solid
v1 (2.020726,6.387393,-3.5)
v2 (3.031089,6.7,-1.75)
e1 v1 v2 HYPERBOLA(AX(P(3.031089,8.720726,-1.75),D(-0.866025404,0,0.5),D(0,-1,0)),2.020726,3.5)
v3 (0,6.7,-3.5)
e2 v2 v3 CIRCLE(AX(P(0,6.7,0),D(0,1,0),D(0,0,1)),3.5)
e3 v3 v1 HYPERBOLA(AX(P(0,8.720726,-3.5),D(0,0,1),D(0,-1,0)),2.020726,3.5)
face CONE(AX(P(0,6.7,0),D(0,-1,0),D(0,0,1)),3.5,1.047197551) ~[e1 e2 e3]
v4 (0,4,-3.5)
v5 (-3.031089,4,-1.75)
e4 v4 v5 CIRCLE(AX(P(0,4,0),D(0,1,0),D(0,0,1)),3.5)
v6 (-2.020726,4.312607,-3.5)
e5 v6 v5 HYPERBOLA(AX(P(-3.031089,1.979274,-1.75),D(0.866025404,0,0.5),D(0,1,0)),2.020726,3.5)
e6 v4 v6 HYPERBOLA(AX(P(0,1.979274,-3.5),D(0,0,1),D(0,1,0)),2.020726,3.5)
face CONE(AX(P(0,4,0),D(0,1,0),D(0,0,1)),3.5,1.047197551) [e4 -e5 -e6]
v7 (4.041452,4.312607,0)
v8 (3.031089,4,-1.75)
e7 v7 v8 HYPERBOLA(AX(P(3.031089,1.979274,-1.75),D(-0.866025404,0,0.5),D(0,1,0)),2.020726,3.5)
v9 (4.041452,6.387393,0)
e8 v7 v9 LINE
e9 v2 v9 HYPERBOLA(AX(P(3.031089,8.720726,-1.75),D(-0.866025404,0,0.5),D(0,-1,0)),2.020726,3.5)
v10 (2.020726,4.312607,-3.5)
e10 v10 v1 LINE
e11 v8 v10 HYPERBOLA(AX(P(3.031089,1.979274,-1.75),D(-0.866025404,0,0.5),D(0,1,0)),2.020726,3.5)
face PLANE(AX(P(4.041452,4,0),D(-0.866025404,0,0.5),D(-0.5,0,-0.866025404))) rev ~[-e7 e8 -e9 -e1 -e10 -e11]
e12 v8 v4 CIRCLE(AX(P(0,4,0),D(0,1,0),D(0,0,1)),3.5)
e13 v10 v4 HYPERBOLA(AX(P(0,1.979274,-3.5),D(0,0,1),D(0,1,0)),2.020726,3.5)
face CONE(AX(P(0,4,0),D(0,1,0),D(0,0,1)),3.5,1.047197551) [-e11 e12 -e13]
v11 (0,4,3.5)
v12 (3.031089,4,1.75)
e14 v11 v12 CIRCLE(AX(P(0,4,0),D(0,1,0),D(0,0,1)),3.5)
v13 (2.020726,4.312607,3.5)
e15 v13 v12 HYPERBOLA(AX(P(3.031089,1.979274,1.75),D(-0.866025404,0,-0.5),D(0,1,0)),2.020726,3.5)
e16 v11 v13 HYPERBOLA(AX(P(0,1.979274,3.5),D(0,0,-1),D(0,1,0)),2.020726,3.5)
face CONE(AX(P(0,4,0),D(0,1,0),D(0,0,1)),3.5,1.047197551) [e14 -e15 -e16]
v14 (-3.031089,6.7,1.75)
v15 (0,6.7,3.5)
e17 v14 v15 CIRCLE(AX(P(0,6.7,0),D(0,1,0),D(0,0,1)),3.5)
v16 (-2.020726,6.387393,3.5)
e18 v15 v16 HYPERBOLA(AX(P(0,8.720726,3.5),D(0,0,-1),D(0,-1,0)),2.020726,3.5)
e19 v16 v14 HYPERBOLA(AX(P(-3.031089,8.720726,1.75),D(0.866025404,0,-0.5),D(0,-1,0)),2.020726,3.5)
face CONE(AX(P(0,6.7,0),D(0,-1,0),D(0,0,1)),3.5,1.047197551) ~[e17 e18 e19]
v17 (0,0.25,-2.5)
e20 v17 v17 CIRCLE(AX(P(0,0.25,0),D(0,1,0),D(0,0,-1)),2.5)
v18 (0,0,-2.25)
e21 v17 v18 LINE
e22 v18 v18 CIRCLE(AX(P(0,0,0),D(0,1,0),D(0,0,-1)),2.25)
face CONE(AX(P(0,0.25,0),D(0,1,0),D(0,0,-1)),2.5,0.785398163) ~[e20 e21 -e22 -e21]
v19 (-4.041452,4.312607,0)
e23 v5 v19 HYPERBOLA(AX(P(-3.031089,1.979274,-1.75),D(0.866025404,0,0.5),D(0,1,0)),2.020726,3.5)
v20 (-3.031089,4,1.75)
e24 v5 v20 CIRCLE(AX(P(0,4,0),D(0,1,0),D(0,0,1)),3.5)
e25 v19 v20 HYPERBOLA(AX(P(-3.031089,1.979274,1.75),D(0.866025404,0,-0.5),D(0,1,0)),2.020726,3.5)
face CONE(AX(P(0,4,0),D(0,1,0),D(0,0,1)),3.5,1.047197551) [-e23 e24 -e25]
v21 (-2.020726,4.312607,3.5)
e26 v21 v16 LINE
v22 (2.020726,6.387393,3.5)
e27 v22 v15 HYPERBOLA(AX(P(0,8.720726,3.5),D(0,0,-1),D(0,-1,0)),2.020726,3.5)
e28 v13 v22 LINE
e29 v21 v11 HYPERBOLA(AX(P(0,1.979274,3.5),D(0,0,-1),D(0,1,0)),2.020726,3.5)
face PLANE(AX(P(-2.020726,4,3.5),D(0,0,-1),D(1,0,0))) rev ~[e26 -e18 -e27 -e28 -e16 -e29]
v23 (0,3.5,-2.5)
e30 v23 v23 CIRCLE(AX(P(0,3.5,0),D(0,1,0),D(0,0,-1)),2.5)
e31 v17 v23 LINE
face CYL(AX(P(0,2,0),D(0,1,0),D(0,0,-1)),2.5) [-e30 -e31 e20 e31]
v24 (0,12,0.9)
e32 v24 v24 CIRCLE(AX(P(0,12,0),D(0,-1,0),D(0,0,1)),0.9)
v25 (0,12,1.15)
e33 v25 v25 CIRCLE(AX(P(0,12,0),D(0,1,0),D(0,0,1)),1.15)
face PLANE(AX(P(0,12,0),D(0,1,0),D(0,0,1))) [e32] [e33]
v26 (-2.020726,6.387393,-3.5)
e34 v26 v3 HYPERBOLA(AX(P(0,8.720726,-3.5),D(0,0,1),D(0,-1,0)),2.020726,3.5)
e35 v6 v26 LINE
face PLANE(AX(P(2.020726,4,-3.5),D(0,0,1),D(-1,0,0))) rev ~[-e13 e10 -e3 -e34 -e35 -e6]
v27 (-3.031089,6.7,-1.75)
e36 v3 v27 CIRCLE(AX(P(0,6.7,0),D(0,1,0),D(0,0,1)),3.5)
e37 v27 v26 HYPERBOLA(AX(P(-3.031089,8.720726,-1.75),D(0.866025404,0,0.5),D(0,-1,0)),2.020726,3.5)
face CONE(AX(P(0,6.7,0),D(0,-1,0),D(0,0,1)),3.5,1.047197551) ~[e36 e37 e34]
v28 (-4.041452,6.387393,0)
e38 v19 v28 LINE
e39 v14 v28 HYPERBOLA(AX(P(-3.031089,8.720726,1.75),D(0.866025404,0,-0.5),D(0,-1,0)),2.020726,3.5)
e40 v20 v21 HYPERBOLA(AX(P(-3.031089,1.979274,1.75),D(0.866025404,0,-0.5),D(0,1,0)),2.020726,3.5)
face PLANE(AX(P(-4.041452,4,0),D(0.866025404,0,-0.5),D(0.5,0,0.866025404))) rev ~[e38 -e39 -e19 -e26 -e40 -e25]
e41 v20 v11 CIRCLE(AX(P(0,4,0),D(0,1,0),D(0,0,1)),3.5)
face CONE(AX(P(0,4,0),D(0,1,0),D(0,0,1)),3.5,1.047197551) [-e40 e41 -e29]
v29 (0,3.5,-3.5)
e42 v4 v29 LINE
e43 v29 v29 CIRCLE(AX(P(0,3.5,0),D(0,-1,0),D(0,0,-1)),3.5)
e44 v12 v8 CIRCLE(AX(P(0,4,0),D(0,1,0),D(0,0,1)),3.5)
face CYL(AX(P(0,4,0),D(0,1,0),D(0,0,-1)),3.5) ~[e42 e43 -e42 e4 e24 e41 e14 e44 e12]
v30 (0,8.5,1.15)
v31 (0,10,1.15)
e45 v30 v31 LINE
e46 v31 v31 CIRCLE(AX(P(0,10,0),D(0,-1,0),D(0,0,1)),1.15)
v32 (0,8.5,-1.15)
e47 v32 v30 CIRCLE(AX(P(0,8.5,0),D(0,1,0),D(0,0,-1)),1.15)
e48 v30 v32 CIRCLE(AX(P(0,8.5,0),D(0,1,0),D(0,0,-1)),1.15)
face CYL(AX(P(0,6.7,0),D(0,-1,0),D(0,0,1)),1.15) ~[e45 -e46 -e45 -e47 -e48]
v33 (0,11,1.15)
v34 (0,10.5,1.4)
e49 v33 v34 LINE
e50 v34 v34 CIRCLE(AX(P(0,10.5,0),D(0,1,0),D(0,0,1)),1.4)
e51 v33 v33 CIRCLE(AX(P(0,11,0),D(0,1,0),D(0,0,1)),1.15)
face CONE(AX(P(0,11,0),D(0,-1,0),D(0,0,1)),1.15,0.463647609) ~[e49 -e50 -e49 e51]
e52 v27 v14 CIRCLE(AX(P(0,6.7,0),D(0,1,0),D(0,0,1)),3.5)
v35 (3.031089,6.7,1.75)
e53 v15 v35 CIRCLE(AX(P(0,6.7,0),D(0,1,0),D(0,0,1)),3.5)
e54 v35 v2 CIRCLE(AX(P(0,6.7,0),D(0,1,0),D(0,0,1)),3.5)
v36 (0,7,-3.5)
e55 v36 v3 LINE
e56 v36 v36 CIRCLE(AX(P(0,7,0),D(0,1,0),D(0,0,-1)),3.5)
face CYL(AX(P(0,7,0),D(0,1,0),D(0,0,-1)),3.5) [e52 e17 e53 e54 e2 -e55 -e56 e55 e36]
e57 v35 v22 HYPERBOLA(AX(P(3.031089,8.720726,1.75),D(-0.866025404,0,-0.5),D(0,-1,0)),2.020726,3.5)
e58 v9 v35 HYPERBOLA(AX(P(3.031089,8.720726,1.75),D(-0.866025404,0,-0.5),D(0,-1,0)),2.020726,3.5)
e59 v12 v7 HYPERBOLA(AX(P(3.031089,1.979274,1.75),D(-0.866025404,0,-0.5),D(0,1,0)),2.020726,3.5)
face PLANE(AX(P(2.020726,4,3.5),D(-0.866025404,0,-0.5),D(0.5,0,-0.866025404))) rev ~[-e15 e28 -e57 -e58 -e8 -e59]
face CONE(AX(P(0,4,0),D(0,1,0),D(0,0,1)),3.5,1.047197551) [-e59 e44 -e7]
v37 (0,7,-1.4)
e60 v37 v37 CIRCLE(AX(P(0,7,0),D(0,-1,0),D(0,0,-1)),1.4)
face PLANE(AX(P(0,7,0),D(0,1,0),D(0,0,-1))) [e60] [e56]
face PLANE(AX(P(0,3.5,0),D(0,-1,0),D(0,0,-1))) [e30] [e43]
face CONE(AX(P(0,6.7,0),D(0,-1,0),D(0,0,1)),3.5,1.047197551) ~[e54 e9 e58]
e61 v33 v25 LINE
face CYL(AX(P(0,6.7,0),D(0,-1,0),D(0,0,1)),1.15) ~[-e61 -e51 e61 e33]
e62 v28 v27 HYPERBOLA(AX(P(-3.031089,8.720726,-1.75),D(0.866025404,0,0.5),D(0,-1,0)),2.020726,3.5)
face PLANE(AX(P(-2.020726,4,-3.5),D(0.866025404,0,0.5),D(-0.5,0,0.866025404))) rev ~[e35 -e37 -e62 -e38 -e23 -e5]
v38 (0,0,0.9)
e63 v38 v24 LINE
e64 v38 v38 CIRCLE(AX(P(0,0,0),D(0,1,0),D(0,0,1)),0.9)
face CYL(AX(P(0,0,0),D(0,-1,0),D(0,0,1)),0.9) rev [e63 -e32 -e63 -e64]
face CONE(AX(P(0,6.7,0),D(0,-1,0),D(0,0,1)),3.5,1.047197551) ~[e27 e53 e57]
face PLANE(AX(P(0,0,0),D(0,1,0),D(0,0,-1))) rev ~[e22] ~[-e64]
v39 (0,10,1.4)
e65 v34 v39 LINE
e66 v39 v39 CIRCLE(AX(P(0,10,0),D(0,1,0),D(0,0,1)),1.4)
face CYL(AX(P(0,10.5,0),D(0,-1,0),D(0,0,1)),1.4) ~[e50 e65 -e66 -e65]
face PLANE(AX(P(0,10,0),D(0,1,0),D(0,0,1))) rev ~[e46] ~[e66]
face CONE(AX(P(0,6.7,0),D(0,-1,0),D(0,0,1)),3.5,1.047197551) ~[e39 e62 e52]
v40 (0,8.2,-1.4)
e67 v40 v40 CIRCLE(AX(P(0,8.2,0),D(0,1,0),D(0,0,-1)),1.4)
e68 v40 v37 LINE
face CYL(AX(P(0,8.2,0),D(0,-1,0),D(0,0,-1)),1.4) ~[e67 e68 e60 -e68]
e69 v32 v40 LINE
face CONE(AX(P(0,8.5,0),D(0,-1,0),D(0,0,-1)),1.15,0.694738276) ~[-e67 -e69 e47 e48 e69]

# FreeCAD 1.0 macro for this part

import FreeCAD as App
import Part
import Sketcher
from FreeCAD import Vector
Q = App.Units.Quantity


def edges_at(feature, points):
    """Names of the edges that pass closest to the given points."""
    edges = feature.Shape.Edges
    near = lambda p: min(range(len(edges)), key=lambda i: edges[i].distToShape(Part.Vertex(*p))[0])
    return sorted({f"Edge{near(p) + 1}" for p in points})

doc = App.newDocument("Part")
params = doc.addObject("Spreadsheet::Sheet", "Params")
for row, (alias, value) in enumerate([
    ("sketch1_height", "4 mm"),
    ("sketch1_width", "2.5 mm"),
    ("revolution_angle", "360 deg"),
    ("chamfer_size", "0.25 mm"),
    ("pad1_length", "2.7 mm"),
    ("groove_angle", "360 deg"),
    ("sketch4_diameter", "7 mm"),
    ("pad2_length", "0.5 mm"),
    ("sketch5_diameter", "2.3 mm"),
    ("pad3_length", "5.3 mm"),
    ("sketch6_diameter", "7 mm"),
    ("pad4_length", "0.3 mm"),
    ("sketch7_height", "1 mm"),
    ("sketch7_width", "1.4 mm"),
    ("sketch7_height2", "0.5 mm"),
    ("sketch7_width2", "1.15 mm"),
    ("revolution2_angle", "360 deg"),
    ("sketch8_width", "1.4 mm"),
    ("sketch8_height", "1.5 mm"),
    ("sketch8_height2", "1.8 mm"),
    ("sketch8_width2", "1.15 mm"),
    ("revolution3_angle", "360 deg"),
    ("sketch9_diameter", "1.8 mm"),
], start=1):
    params.set(f"A{row}", alias)
    params.set(f"B{row}", "=" + value)
    params.setAlias(f"B{row}", alias)

body = doc.addObject("PartDesign::Body", "Body")

# Sketch on XY plane
sketch1 = doc.addObject("Sketcher::SketchObject", "Sketch")
body.addObject(sketch1)
sketch1.AttachmentSupport = (doc.XY_Plane, [""])
sketch1.MapMode = "FlatFace"
sketch1.addGeometry([
    Part.LineSegment(Vector(-2.5, 4, 0), Vector(-2.5, 0, 0)),
    Part.LineSegment(Vector(-2.5, 0, 0), Vector(0, 0, 0)),
    Part.LineSegment(Vector(0, 0, 0), Vector(0, 4, 0)),
    Part.LineSegment(Vector(0, 4, 0), Vector(-2.5, 4, 0)),
], False)
sketch1.addConstraint([
    Sketcher.Constraint("Coincident", 0, 2, 1, 1),
    Sketcher.Constraint("Coincident", 1, 2, 2, 1),
    Sketcher.Constraint("Coincident", 2, 2, 3, 1),
    Sketcher.Constraint("Coincident", 3, 2, 0, 1),
    Sketcher.Constraint("Vertical", 0),
    Sketcher.Constraint("Horizontal", 1),
    Sketcher.Constraint("Vertical", 2),
    Sketcher.Constraint("Horizontal", 3),
    Sketcher.Constraint("Coincident", 1, 2, -1, 1),
    Sketcher.Constraint("DistanceY", 0, 2, 0, 1, 4.0),
    Sketcher.Constraint("DistanceX", 1, 1, 1, 2, 2.5),
])
sketch1.setExpression("Constraints[9]", "Params.sketch1_height")
sketch1.setExpression("Constraints[10]", "Params.sketch1_width")
revolution = doc.addObject("PartDesign::Revolution", "Revolution")
body.addObject(revolution)
revolution.Profile = sketch1
revolution.ReferenceAxis = (sketch1, ["V_Axis"])
revolution.setExpression("Angle", "Params.revolution_angle")
doc.recompute()

chamfer = doc.addObject("PartDesign::Chamfer", "Chamfer")
body.addObject(chamfer)
chamfer.Base = (revolution, edges_at(revolution, [(0, 0, 2.5)]))
chamfer.setExpression("Size", "Params.chamfer_size")

# Sketch on XZ plane
sketch2 = doc.addObject("Sketcher::SketchObject", "Sketch001")
body.addObject(sketch2)
sketch2.AttachmentSupport = (doc.XZ_Plane, [""])
sketch2.MapMode = "FlatFace"
sketch2.AttachmentOffset = App.Placement(Vector(0, 0, -4), App.Rotation())
sketch2.addGeometry([
    Part.LineSegment(Vector(4, 0, 0), Vector(2, -3.5, 0)),  # 0
    Part.LineSegment(Vector(2, -3.5, 0), Vector(-2, -3.5, 0)),  # 1
    Part.LineSegment(Vector(-2, -3.5, 0), Vector(-4, 0, 0)),  # 2
    Part.LineSegment(Vector(-4, 0, 0), Vector(-2, 3.5, 0)),  # 3
    Part.LineSegment(Vector(-2, 3.5, 0), Vector(2, 3.5, 0)),  # 4
    Part.LineSegment(Vector(2, 3.5, 0), Vector(4, 0, 0)),  # 5
], False)
sketch2.addConstraint([
    Sketcher.Constraint("Coincident", 0, 2, 1, 1),
    Sketcher.Constraint("Coincident", 1, 2, 2, 1),
    Sketcher.Constraint("Coincident", 2, 2, 3, 1),
    Sketcher.Constraint("Coincident", 3, 2, 4, 1),
    Sketcher.Constraint("Coincident", 4, 2, 5, 1),
    Sketcher.Constraint("Coincident", 5, 2, 0, 1),
    Sketcher.Constraint("Horizontal", 1),
    Sketcher.Constraint("Horizontal", 4),
    Sketcher.Constraint("Symmetric", 0, 2, 3, 2, -1, 1),
    Sketcher.Constraint("Symmetric", 2, 2, 5, 2, -1, 1),
    Sketcher.Constraint("PointOnObject", 2, 2, -1),
    Sketcher.Constraint("Parallel", 2, 5),
    Sketcher.Constraint("Vertical", 1, 2, 3, 2),
    Sketcher.Constraint("Angle", 0, Q("-120 deg")),
    Sketcher.Constraint("DistanceY", 1, 2, 3, 2, 7.0),
    Sketcher.Constraint("DistanceX", 1, 2, 1, 1, 4.041452),
])
pad1 = doc.addObject("PartDesign::Pad", "Pad")
body.addObject(pad1)
pad1.Profile = sketch2
pad1.setExpression("Length", "Params.pad1_length")
pad1.Reversed = True

# Sketch on XY plane
sketch3 = doc.addObject("Sketcher::SketchObject", "Sketch002")
body.addObject(sketch3)
sketch3.AttachmentSupport = (doc.XY_Plane, [""])
sketch3.MapMode = "FlatFace"
sketch3.addGeometry([
    Part.LineSegment(Vector(-4.04, 4.31, 0), Vector(-4.04, 4, 0)),  # 0
    Part.LineSegment(Vector(-4.04, 4, 0), Vector(-3.5, 4, 0)),  # 1
    Part.LineSegment(Vector(-3.5, 4, 0), Vector(-4.04, 4.31, 0)),  # 2
    Part.LineSegment(Vector(-4.04, 6.39, 0), Vector(-3.5, 6.7, 0)),  # 3
    Part.LineSegment(Vector(-3.5, 6.7, 0), Vector(-4.04, 6.7, 0)),  # 4
    Part.LineSegment(Vector(-4.04, 6.7, 0), Vector(-4.04, 6.39, 0)),  # 5
], False)
sketch3.addConstraint([
    Sketcher.Constraint("Coincident", 0, 2, 1, 1),
    Sketcher.Constraint("Coincident", 1, 2, 2, 1),
    Sketcher.Constraint("Coincident", 2, 2, 0, 1),
    Sketcher.Constraint("Coincident", 3, 2, 4, 1),
    Sketcher.Constraint("Coincident", 4, 2, 5, 1),
    Sketcher.Constraint("Coincident", 5, 2, 3, 1),
    Sketcher.Constraint("Vertical", 0),
    Sketcher.Constraint("Horizontal", 1),
    Sketcher.Constraint("Horizontal", 4),
    Sketcher.Constraint("Vertical", 5),
    Sketcher.Constraint("Vertical", 1, 2, 3, 2),
    Sketcher.Constraint("Vertical", 2, 2, 4, 2),
    Sketcher.Constraint("Equal", 0, 5),
    Sketcher.Constraint("Angle", 2, Q("150 deg")),
    Sketcher.Constraint("DistanceY", -1, 1, 0, 2, 4.0),
    Sketcher.Constraint("DistanceX", 1, 2, -1, 1, 3.5),
    Sketcher.Constraint("DistanceY", -1, 1, 3, 2, 6.7),
    Sketcher.Constraint("DistanceX", 1, 1, 1, 2, 0.541452),
])
groove = doc.addObject("PartDesign::Groove", "Groove")
body.addObject(groove)
groove.Profile = sketch3
groove.ReferenceAxis = (sketch3, ["V_Axis"])
groove.setExpression("Angle", "Params.groove_angle")

# Sketch on XZ plane
sketch4 = doc.addObject("Sketcher::SketchObject", "Sketch003")
body.addObject(sketch4)
sketch4.AttachmentSupport = (doc.XZ_Plane, [""])
sketch4.MapMode = "FlatFace"
sketch4.AttachmentOffset = App.Placement(Vector(0, 0, -4), App.Rotation())
sketch4.addGeometry(Part.Circle(Vector(0, 0, 0), Vector(0, 0, 1), 3.5), False)
sketch4.addConstraint([
    Sketcher.Constraint("Coincident", 0, 3, -1, 1),
    Sketcher.Constraint("Diameter", 0, 7.0),
])
sketch4.setExpression("Constraints[1]", "Params.sketch4_diameter")
pad2 = doc.addObject("PartDesign::Pad", "Pad001")
body.addObject(pad2)
pad2.Profile = sketch4
pad2.setExpression("Length", "Params.pad2_length")

# Sketch on XZ plane
sketch5 = doc.addObject("Sketcher::SketchObject", "Sketch004")
body.addObject(sketch5)
sketch5.AttachmentSupport = (doc.XZ_Plane, [""])
sketch5.MapMode = "FlatFace"
sketch5.AttachmentOffset = App.Placement(Vector(0, 0, -6.7), App.Rotation())
sketch5.addGeometry(Part.Circle(Vector(0, 0, 0), Vector(0, 0, 1), 1.1), False)
sketch5.addConstraint([
    Sketcher.Constraint("Coincident", 0, 3, -1, 1),
    Sketcher.Constraint("Diameter", 0, 2.3),
])
sketch5.setExpression("Constraints[1]", "Params.sketch5_diameter")
pad3 = doc.addObject("PartDesign::Pad", "Pad002")
body.addObject(pad3)
pad3.Profile = sketch5
pad3.setExpression("Length", "Params.pad3_length")
pad3.Reversed = True

# Sketch on XZ plane
sketch6 = doc.addObject("Sketcher::SketchObject", "Sketch005")
body.addObject(sketch6)
sketch6.AttachmentSupport = (doc.XZ_Plane, [""])
sketch6.MapMode = "FlatFace"
sketch6.AttachmentOffset = App.Placement(Vector(0, 0, -7), App.Rotation())
sketch6.addGeometry(Part.Circle(Vector(0, 0, 0), Vector(0, 0, 1), 3.5), False)
sketch6.addConstraint([
    Sketcher.Constraint("Coincident", 0, 3, -1, 1),
    Sketcher.Constraint("Diameter", 0, 7.0),
])
sketch6.setExpression("Constraints[1]", "Params.sketch6_diameter")
pad4 = doc.addObject("PartDesign::Pad", "Pad003")
body.addObject(pad4)
pad4.Profile = sketch6
pad4.setExpression("Length", "Params.pad4_length")

# Sketch on XY plane
sketch7 = doc.addObject("Sketcher::SketchObject", "Sketch006")
body.addObject(sketch7)
sketch7.AttachmentSupport = (doc.XY_Plane, [""])
sketch7.MapMode = "FlatFace"
sketch7.addGeometry([
    Part.LineSegment(Vector(0, 11, 0), Vector(-1.1, 11, 0)),  # 0
    Part.LineSegment(Vector(-1.1, 11, 0), Vector(-1.4, 10.5, 0)),  # 1
    Part.LineSegment(Vector(-1.4, 10.5, 0), Vector(-1.4, 10, 0)),  # 2
    Part.LineSegment(Vector(-1.4, 10, 0), Vector(0, 10, 0)),  # 3
    Part.LineSegment(Vector(0, 10, 0), Vector(0, 11, 0)),  # 4
], False)
sketch7.addConstraint([
    Sketcher.Constraint("Coincident", 0, 2, 1, 1),
    Sketcher.Constraint("Coincident", 1, 2, 2, 1),
    Sketcher.Constraint("Coincident", 2, 2, 3, 1),
    Sketcher.Constraint("Coincident", 3, 2, 4, 1),
    Sketcher.Constraint("Coincident", 4, 2, 0, 1),
    Sketcher.Constraint("Horizontal", 0),
    Sketcher.Constraint("Vertical", 2),
    Sketcher.Constraint("Horizontal", 3),
    Sketcher.Constraint("Vertical", 4),
    Sketcher.Constraint("PointOnObject", 3, 2, -2),
    Sketcher.Constraint("DistanceY", 4, 1, 4, 2, 1.0),
    Sketcher.Constraint("DistanceX", 3, 1, 3, 2, 1.4),
    Sketcher.Constraint("DistanceY", 2, 2, 2, 1, 0.5),
    Sketcher.Constraint("DistanceY", -1, 1, 0, 2, 11.0),
    Sketcher.Constraint("DistanceX", 0, 2, 0, 1, 1.15),
])
sketch7.setExpression("Constraints[10]", "Params.sketch7_height")
sketch7.setExpression("Constraints[11]", "Params.sketch7_width")
sketch7.setExpression("Constraints[12]", "Params.sketch7_height2")
sketch7.setExpression("Constraints[14]", "Params.sketch7_width2")
revolution2 = doc.addObject("PartDesign::Revolution", "Revolution001")
body.addObject(revolution2)
revolution2.Profile = sketch7
revolution2.ReferenceAxis = (sketch7, ["V_Axis"])
revolution2.setExpression("Angle", "Params.revolution2_angle")

# Sketch on XY plane
sketch8 = doc.addObject("Sketcher::SketchObject", "Sketch007")
body.addObject(sketch8)
sketch8.AttachmentSupport = (doc.XY_Plane, [""])
sketch8.MapMode = "FlatFace"
sketch8.addGeometry([
    Part.LineSegment(Vector(0, 8.5, 0), Vector(-1.15, 8.5, 0)),  # 0
    Part.LineSegment(Vector(-1.15, 8.5, 0), Vector(-1.4, 8.2, 0)),  # 1
    Part.LineSegment(Vector(-1.4, 8.2, 0), Vector(-1.4, 6.7, 0)),  # 2
    Part.LineSegment(Vector(-1.4, 6.7, 0), Vector(0, 6.7, 0)),  # 3
    Part.LineSegment(Vector(0, 6.7, 0), Vector(0, 8.5, 0)),  # 4
], False)
sketch8.addConstraint([
    Sketcher.Constraint("Coincident", 0, 2, 1, 1),
    Sketcher.Constraint("Coincident", 1, 2, 2, 1),
    Sketcher.Constraint("Coincident", 2, 2, 3, 1),
    Sketcher.Constraint("Coincident", 3, 2, 4, 1),
    Sketcher.Constraint("Coincident", 4, 2, 0, 1),
    Sketcher.Constraint("Horizontal", 0),
    Sketcher.Constraint("Vertical", 2),
    Sketcher.Constraint("Horizontal", 3),
    Sketcher.Constraint("Vertical", 4),
    Sketcher.Constraint("PointOnObject", 3, 2, -2),
    Sketcher.Constraint("DistanceX", 3, 1, 3, 2, 1.4),
    Sketcher.Constraint("DistanceY", 2, 2, 2, 1, 1.5),
    Sketcher.Constraint("DistanceY", 4, 1, 4, 2, 1.8),
    Sketcher.Constraint("DistanceX", 0, 2, 0, 1, 1.15),
    Sketcher.Constraint("DistanceY", -1, 1, 0, 2, 8.5),
])
sketch8.setExpression("Constraints[10]", "Params.sketch8_width")
sketch8.setExpression("Constraints[11]", "Params.sketch8_height")
sketch8.setExpression("Constraints[12]", "Params.sketch8_height2")
sketch8.setExpression("Constraints[13]", "Params.sketch8_width2")
revolution3 = doc.addObject("PartDesign::Revolution", "Revolution002")
body.addObject(revolution3)
revolution3.Profile = sketch8
revolution3.ReferenceAxis = (sketch8, ["V_Axis"])
revolution3.setExpression("Angle", "Params.revolution3_angle")

# Sketch on XZ plane
sketch9 = doc.addObject("Sketcher::SketchObject", "Sketch008")
body.addObject(sketch9)
sketch9.AttachmentSupport = (doc.XZ_Plane, [""])
sketch9.MapMode = "FlatFace"
sketch9.addGeometry(Part.Circle(Vector(0, 0, 0), Vector(0, 0, 1), 0.9), False)
sketch9.addConstraint([
    Sketcher.Constraint("Coincident", 0, 3, -1, 1),
    Sketcher.Constraint("Diameter", 0, 1.8),
])
sketch9.setExpression("Constraints[1]", "Params.sketch9_diameter")
pocket1 = doc.addObject("PartDesign::Pocket", "Pocket")
body.addObject(pocket1)
pocket1.Profile = sketch9
pocket1.Type = "ThroughAll"

doc.recompute()
